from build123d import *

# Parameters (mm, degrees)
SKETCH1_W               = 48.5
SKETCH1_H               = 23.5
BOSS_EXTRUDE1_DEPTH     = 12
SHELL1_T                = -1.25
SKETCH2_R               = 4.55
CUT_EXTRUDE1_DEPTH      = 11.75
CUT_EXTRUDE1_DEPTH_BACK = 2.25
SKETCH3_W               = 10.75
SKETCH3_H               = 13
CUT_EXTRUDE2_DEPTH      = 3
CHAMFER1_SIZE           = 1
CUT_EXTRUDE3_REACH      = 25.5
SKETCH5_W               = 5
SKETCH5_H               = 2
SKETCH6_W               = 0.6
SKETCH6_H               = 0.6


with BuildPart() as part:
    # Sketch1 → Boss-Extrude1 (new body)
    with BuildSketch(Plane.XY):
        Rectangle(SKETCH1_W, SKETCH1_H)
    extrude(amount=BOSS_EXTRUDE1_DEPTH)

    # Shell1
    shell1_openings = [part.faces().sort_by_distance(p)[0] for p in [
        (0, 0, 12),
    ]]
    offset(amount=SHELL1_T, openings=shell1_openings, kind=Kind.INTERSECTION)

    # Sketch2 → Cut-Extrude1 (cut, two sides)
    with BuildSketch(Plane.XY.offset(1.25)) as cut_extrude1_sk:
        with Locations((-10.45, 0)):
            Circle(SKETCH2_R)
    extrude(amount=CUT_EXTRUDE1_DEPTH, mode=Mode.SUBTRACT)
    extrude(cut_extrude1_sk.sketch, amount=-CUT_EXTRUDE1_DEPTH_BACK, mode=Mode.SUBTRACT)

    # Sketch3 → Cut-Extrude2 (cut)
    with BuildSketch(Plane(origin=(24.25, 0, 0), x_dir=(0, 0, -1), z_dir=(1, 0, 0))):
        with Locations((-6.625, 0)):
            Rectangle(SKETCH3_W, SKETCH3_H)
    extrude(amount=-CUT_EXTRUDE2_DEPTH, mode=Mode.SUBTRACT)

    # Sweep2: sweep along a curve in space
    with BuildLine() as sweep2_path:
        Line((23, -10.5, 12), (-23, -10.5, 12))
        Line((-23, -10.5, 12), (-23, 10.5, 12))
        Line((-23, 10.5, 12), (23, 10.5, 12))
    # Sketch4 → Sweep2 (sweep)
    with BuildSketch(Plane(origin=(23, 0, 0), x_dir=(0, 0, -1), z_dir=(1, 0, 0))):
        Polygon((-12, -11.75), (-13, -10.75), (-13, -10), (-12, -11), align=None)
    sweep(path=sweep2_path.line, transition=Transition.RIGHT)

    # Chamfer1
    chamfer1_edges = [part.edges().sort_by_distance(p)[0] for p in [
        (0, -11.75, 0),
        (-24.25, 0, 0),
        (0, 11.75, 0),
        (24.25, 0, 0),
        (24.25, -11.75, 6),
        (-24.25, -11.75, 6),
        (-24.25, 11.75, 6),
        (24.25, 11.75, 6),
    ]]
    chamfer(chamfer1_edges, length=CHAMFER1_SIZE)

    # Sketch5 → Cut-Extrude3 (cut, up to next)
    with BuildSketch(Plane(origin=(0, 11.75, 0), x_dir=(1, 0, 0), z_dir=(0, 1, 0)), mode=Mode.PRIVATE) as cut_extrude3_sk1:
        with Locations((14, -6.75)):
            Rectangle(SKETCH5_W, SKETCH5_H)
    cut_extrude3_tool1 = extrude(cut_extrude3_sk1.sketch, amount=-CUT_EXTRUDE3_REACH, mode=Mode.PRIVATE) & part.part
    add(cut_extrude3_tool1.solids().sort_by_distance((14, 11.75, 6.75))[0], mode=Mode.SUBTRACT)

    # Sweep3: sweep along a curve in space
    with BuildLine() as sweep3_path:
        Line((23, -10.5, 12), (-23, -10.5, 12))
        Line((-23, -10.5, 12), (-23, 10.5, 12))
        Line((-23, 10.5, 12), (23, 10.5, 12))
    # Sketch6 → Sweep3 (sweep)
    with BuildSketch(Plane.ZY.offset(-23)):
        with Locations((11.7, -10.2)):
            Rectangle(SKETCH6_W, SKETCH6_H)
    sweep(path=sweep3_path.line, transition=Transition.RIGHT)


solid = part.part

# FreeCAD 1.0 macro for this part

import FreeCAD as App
import Part
import Sketcher

V = App.Vector
Q = App.Units.Quantity


def edges_at(feature, points):
    """Names of the edges that pass closest to the given points."""
    edges = feature.Shape.Edges
    near = lambda p: min(range(len(edges)), key=lambda i: edges[i].distToShape(Part.Vertex(*p))[0])
    return sorted({f"Edge{near(p) + 1}" for p in points})


def faces_at(feature, points):
    """Names of the faces that lie closest to the given points."""
    faces = feature.Shape.Faces
    near = lambda p: min(range(len(faces)), key=lambda i: faces[i].distToShape(Part.Vertex(*p))[0])
    return sorted({f"Face{near(p) + 1}" for p in points})


def add_polygon(sketch, points):
    """Adds a closed chain of lines whose ends are joined by coincident constraints."""
    first, n = sketch.GeometryCount, len(points)
    for a, b in zip(points, points[1:] + points[:1]):
        sketch.addGeometry(Part.LineSegment(App.Vector(*a, 0), App.Vector(*b, 0)), False)
    for i in range(n):
        sketch.addConstraint(Sketcher.Constraint("Coincident", first + i, 2, first + (i + 1) % n, 1))

doc = App.newDocument("Part")
body = doc.addObject("PartDesign::Body", "Body")

sketch1 = body.newObject("Sketcher::SketchObject", "Sketch")
sketch1.AttachmentSupport = (doc.getObject("XY_Plane"), [""])
sketch1.MapMode = "FlatFace"
add_polygon(sketch1, [(-24.25, 11.75), (-24.25, -11.75), (24.25, -11.75), (24.25, 11.75)])
sketch1.addConstraint([
    Sketcher.Constraint("Vertical", 0),
    Sketcher.Constraint("Horizontal", 1),
    Sketcher.Constraint("Vertical", 2),
    Sketcher.Constraint("Horizontal", 3),
    Sketcher.Constraint("Symmetric", 0, 2, 2, 2, -1, 1),
    Sketcher.Constraint("DistanceX", 1, 1, 1, 2, 48.5),
    Sketcher.Constraint("DistanceY", 0, 2, 0, 1, 23.5),
])
pad1 = body.newObject("PartDesign::Pad", "Pad")
pad1.Profile = sketch1
pad1.Length = 12
doc.recompute()

thickness = body.newObject("PartDesign::Thickness", "Thickness")
thickness.Base = (pad1, faces_at(pad1, [(0, 0, 12)]))
thickness.Value = 1.25
thickness.Reversed = True
thickness.Join = "Intersection"

sketch2 = body.newObject("Sketcher::SketchObject", "Sketch001")
sketch2.AttachmentSupport = (doc.getObject("XY_Plane"), [""])
sketch2.MapMode = "FlatFace"
sketch2.AttachmentOffset = App.Placement(V(0, 0, 1.25), App.Rotation())
sketch2.addGeometry(Part.Circle(V(-10.45, 0, 0), V(0, 0, 1), 4.55), False)
sketch2.addConstraint([
    Sketcher.Constraint("PointOnObject", 0, 3, -1),
    Sketcher.Constraint("Diameter", 0, 9.1),
    Sketcher.Constraint("DistanceX", 0, 3, -1, 1, 10.45),
])
pocket1 = body.newObject("PartDesign::Pocket", "Pocket")
pocket1.Profile = sketch2
pocket1.Type = "ThroughAll"
pocket1.Midplane = True

sketch3 = body.newObject("Sketcher::SketchObject", "Sketch002")
sketch3.AttachmentSupport = (doc.getObject("YZ_Plane"), [""])
sketch3.MapMode = "FlatFace"
sketch3.AttachmentOffset = App.Placement(V(0, 0, 24.25), App.Rotation())
add_polygon(sketch3, [(6.5, 12), (-6.5, 12), (-6.5, 1.25), (6.5, 1.25)])
sketch3.addConstraint([
    Sketcher.Constraint("Horizontal", 0),
    Sketcher.Constraint("Vertical", 1),
    Sketcher.Constraint("Horizontal", 2),
    Sketcher.Constraint("Vertical", 3),
    Sketcher.Constraint("DistanceX", 0, 2, 0, 1, 13.0),
    Sketcher.Constraint("DistanceY", -1, 1, 0, 2, 12.0),
    Sketcher.Constraint("DistanceY", 1, 2, 1, 1, 10.75),
    Sketcher.Constraint("DistanceX", 0, 2, -1, 1, 6.5),
])
pocket2 = body.newObject("PartDesign::Pocket", "Pocket001")
pocket2.Profile = sketch3
pocket2.Length = 3

sketch4 = body.newObject("Sketcher::SketchObject", "Sketch003")
sketch4.AttachmentSupport = (doc.getObject("YZ_Plane"), [""])
sketch4.MapMode = "FlatFace"
sketch4.AttachmentOffset = App.Placement(V(0, 0, 23), App.Rotation())
add_polygon(sketch4, [(-10.75, 13), (-11.75, 12), (-11, 12), (-10, 13)])
sketch4.addConstraint([
    Sketcher.Constraint("Horizontal", 1),
    Sketcher.Constraint("Horizontal", 3),
    Sketcher.Constraint("Parallel", 0, 2),
    Sketcher.Constraint("Angle", 0, Q("-135 deg")),
    Sketcher.Constraint("DistanceY", -1, 1, 0, 2, 12.0),
    Sketcher.Constraint("DistanceX", 1, 2, -1, 1, 11.0),
    Sketcher.Constraint("DistanceX", 2, 2, -1, 1, 10.0),
    Sketcher.Constraint("DistanceX", 1, 1, 1, 2, 0.75),
])

sketch5 = body.newObject("Sketcher::SketchObject", "Sketch004")
sketch5.AttachmentSupport = (doc.getObject("XY_Plane"), [""])
sketch5.MapMode = "FlatFace"
sketch5.AttachmentOffset = App.Placement(V(0, 0, 12), App.Rotation())
sketch5.addGeometry([
    Part.LineSegment(V(23, -10.5, 0), V(-23, -10.5, 0)),
    Part.LineSegment(V(-23, -10.5, 0), V(-23, 10.5, 0)),
    Part.LineSegment(V(-23, 10.5, 0), V(23, 10.5, 0)),
], False)
sketch5.addConstraint([
    Sketcher.Constraint("Coincident", 0, 2, 1, 1),
    Sketcher.Constraint("Coincident", 1, 2, 2, 1),
    Sketcher.Constraint("Horizontal", 0),
    Sketcher.Constraint("Vertical", 1),
    Sketcher.Constraint("Horizontal", 2),
    Sketcher.Constraint("Symmetric", 0, 1, 1, 2, -1, 1),
    Sketcher.Constraint("Vertical", 0, 1, 2, 2),
    Sketcher.Constraint("DistanceX", 0, 2, 0, 1, 46.0),
    Sketcher.Constraint("DistanceY", 1, 1, 1, 2, 21.0),
])
doc.recompute()

additivepipe = body.newObject("PartDesign::AdditivePipe", "AdditivePipe")
additivepipe.Profile = sketch4
additivepipe.Spine = (sketch5, ["Edge1", "Edge2", "Edge3"])
additivepipe.Transition = "Right corner"
doc.recompute()

chamfer = body.newObject("PartDesign::Chamfer", "Chamfer")
chamfer.Base = (additivepipe, edges_at(additivepipe, [
    (0, -11.75, 0),
    (-24.25, 0, 0),
    (0, 11.75, 0),
    (24.25, 0, 0),
    (24.25, -11.75, 6),
    (-24.25, -11.75, 6),
    (-24.25, 11.75, 6),
    (24.25, 11.75, 6),
]))
chamfer.Size = 1

sketch6 = body.newObject("Sketcher::SketchObject", "Sketch005")
sketch6.AttachmentSupport = (doc.getObject("XZ_Plane"), [""])
sketch6.MapMode = "FlatFace"
sketch6.AttachmentOffset = App.Placement(V(0, 0, -11.75), App.Rotation())
add_polygon(sketch6, [(11.5, 5.75), (11.5, 7.75), (16.5, 7.75), (16.5, 5.75)])
sketch6.addConstraint([
    Sketcher.Constraint("Vertical", 0),
    Sketcher.Constraint("Horizontal", 1),
    Sketcher.Constraint("Vertical", 2),
    Sketcher.Constraint("Horizontal", 3),
    Sketcher.Constraint("DistanceX", 1, 1, 1, 2, 5.0),
    Sketcher.Constraint("DistanceY", 0, 1, 0, 2, 2.0),
    Sketcher.Constraint("DistanceX", -1, 1, 0, 2, 11.5),
    Sketcher.Constraint("DistanceY", -1, 1, 0, 2, 7.75),
])
pocket3 = body.newObject("PartDesign::Pocket", "Pocket002")
pocket3.Profile = sketch6
pocket3.Type = "UpToFirst"
pocket3.Reversed = True

sketch7 = body.newObject("Sketcher::SketchObject", "Sketch006")
sketch7.AttachmentSupport = (doc.getObject("YZ_Plane"), [""])
sketch7.MapMode = "FlatFace"
sketch7.AttachmentOffset = App.Placement(V(0, 0, 23), App.Rotation())
add_polygon(sketch7, [(-9.9, 11.4), (-10.5, 11.4), (-10.5, 12), (-9.9, 12)])
sketch7.addConstraint([
    Sketcher.Constraint("Horizontal", 0),
    Sketcher.Constraint("Vertical", 1),
    Sketcher.Constraint("Horizontal", 2),
    Sketcher.Constraint("Vertical", 3),
    Sketcher.Constraint("Equal", 2, 1),
    Sketcher.Constraint("DistanceX", 0, 2, 0, 1, 0.6),
    Sketcher.Constraint("DistanceY", -1, 1, 1, 2, 12.0),
    Sketcher.Constraint("DistanceX", 0, 2, -1, 1, 10.5),
])

sketch8 = body.newObject("Sketcher::SketchObject", "Sketch007")
sketch8.AttachmentSupport = (doc.getObject("XY_Plane"), [""])
sketch8.MapMode = "FlatFace"
sketch8.AttachmentOffset = App.Placement(V(0, 0, 12), App.Rotation())
sketch8.addGeometry([
    Part.LineSegment(V(23, -10.5, 0), V(-23, -10.5, 0)),
    Part.LineSegment(V(-23, -10.5, 0), V(-23, 10.5, 0)),
    Part.LineSegment(V(-23, 10.5, 0), V(23, 10.5, 0)),
], False)
sketch8.addConstraint([
    Sketcher.Constraint("Coincident", 0, 2, 1, 1),
    Sketcher.Constraint("Coincident", 1, 2, 2, 1),
    Sketcher.Constraint("Horizontal", 0),
    Sketcher.Constraint("Vertical", 1),
    Sketcher.Constraint("Horizontal", 2),
    Sketcher.Constraint("Symmetric", 0, 1, 1, 2, -1, 1),
    Sketcher.Constraint("Vertical", 0, 1, 2, 2),
    Sketcher.Constraint("DistanceX", 0, 2, 0, 1, 46.0),
    Sketcher.Constraint("DistanceY", 1, 1, 1, 2, 21.0),
])
doc.recompute()

additivepipe2 = body.newObject("PartDesign::AdditivePipe", "AdditivePipe001")
additivepipe2.Profile = sketch7
additivepipe2.Spine = (sketch8, ["Edge1", "Edge2", "Edge3"])
additivepipe2.Transition = "Right corner"

doc.recompute()
